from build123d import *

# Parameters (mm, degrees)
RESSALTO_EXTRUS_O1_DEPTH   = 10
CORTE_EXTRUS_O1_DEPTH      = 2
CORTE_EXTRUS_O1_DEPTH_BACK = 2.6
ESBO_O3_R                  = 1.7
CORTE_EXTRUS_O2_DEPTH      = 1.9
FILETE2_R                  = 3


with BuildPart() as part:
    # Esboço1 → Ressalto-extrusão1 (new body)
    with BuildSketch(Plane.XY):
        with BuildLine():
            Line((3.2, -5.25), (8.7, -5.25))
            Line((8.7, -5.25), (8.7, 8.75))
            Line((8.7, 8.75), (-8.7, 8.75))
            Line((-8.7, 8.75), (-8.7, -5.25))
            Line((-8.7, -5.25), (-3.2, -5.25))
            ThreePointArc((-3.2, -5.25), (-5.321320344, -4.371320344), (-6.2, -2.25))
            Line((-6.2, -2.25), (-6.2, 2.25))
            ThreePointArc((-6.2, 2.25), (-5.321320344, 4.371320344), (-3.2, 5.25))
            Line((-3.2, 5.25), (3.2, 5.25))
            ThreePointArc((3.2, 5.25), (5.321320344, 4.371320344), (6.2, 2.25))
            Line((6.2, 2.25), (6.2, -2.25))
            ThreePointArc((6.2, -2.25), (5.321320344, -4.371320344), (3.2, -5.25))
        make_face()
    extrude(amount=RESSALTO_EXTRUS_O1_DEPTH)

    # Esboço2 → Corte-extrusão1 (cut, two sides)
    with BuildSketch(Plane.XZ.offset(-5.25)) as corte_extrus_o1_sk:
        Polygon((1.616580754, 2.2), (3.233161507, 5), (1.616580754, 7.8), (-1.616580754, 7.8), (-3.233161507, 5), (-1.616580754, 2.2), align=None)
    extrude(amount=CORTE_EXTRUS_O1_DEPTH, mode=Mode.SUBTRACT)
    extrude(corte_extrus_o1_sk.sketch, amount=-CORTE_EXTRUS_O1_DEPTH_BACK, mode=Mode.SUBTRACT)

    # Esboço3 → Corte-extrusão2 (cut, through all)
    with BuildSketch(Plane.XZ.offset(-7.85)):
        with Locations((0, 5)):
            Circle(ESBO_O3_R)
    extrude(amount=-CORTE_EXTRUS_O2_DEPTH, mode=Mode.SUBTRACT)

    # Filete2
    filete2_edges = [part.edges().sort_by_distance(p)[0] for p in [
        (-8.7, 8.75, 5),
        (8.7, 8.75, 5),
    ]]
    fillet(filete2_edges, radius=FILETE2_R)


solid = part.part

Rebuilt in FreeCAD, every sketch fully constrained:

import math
import FreeCAD as App
import Part
import Sketcher
Q = App.Units.Quantity


def edges_at(feature, points):
    """Names of the edges that pass closest to the given points."""
    edges = feature.Shape.Edges
    near = lambda p: min(range(len(edges)), key=lambda i: edges[i].distToShape(Part.Vertex(*p))[0])
    return sorted({f"Edge{near(p) + 1}" for p in points})

doc = App.newDocument("Part")
params = doc.addObject("Spreadsheet::Sheet", "Params")
for row, (alias, value) in enumerate([
    ("sketch1_radius", "3 mm"),
    ("sketch1_height", "14 mm"),
    ("sketch1_width", "5.5 mm"),
    ("sketch1_width2", "17.4 mm"),
    ("sketch1_height2", "4.5 mm"),
    ("pad1_length", "10 mm"),
    ("pocket1_length", "2 mm"),
    ("pocket1_length2", "2.6 mm"),
    ("sketch3_diameter", "3.4 mm"),
    ("fillet_radius", "3 mm"),
], start=1):
    params.set(f"A{row}", alias)
    params.set(f"B{row}", "=" + value)
    params.setAlias(f"B{row}", alias)

body = doc.addObject("PartDesign::Body", "Body")

sketch1 = body.newObject("Sketcher::SketchObject", "Sketch")
sketch1.AttachmentSupport = (doc.getObject("XY_Plane"), [""])
sketch1.MapMode = "FlatFace"
sketch1.addGeometry([
    Part.LineSegment(App.Vector(3.2, -5.2, 0), App.Vector(8.7, -5.2, 0)),
    Part.LineSegment(App.Vector(8.7, -5.2, 0), App.Vector(8.7, 8.8, 0)),
    Part.LineSegment(App.Vector(8.7, 8.8, 0), App.Vector(-8.7, 8.8, 0)),
    Part.LineSegment(App.Vector(-8.7, 8.8, 0), App.Vector(-8.7, -5.2, 0)),
    Part.LineSegment(App.Vector(-8.7, -5.2, 0), App.Vector(-3.2, -5.2, 0)),
    Part.ArcOfCircle(Part.Circle(App.Vector(-3.2, -2.3, 0), App.Vector(0, 0, 1), 3), math.radians(180), math.radians(270)),
    Part.LineSegment(App.Vector(-6.2, -2.2, 0), App.Vector(-6.2, 2.2, 0)),
    Part.ArcOfCircle(Part.Circle(App.Vector(-3.2, 2.3, 0), App.Vector(0, 0, 1), 3), math.radians(90), math.radians(180)),
    Part.LineSegment(App.Vector(-3.2, 5.2, 0), App.Vector(3.2, 5.2, 0)),
    Part.ArcOfCircle(Part.Circle(App.Vector(3.2, 2.3, 0), App.Vector(0, 0, 1), 3), math.radians(0), math.radians(90)),
    Part.LineSegment(App.Vector(6.2, 2.2, 0), App.Vector(6.2, -2.2, 0)),
    Part.ArcOfCircle(Part.Circle(App.Vector(3.2, -2.3, 0), App.Vector(0, 0, 1), 3), math.radians(-90), math.radians(0)),
], False)
sketch1.addConstraint([
    Sketcher.Constraint("Coincident", 0, 2, 1, 1),
    Sketcher.Constraint("Coincident", 1, 2, 2, 1),
    Sketcher.Constraint("Coincident", 2, 2, 3, 1),
    Sketcher.Constraint("Coincident", 3, 2, 4, 1),
    Sketcher.Constraint("Tangent", 4, 2, 5, 2),
    Sketcher.Constraint("Tangent", 5, 1, 6, 1),
    Sketcher.Constraint("Tangent", 6, 2, 7, 2),
    Sketcher.Constraint("Tangent", 7, 1, 8, 1),
    Sketcher.Constraint("Tangent", 8, 2, 9, 2),
    Sketcher.Constraint("Tangent", 9, 1, 10, 1),
    Sketcher.Constraint("Tangent", 10, 2, 11, 2),
    Sketcher.Constraint("Tangent", 11, 1, 0, 1),
    Sketcher.Constraint("Horizontal", 0),
    Sketcher.Constraint("Vertical", 1),
    Sketcher.Constraint("Horizontal", 2),
    Sketcher.Constraint("Vertical", 3),
    Sketcher.Constraint("Horizontal", 4),
    Sketcher.Constraint("Vertical", 6),
    Sketcher.Constraint("Horizontal", 8),
    Sketcher.Constraint("Vertical", 10),
    Sketcher.Constraint("Equal", 5, 7),
    Sketcher.Constraint("Equal", 7, 9),
    Sketcher.Constraint("Equal", 9, 11),
    Sketcher.Constraint("Symmetric", 5, 3, 9, 3, -1, 1),
    Sketcher.Constraint("Symmetric", 0, 2, 3, 2, -2),
    Sketcher.Constraint("Radius", 5, Q("3 mm")),
    Sketcher.Constraint("DistanceY", 1, 1, 1, 2, Q("14 mm")),
    Sketcher.Constraint("DistanceX", 0, 1, 0, 2, Q("5.5 mm")),
    Sketcher.Constraint("DistanceX", 2, 2, 2, 1, Q("17.4 mm")),
    Sketcher.Constraint("DistanceY", 6, 1, 6, 2, Q("4.5 mm")),
])
sketch1.setExpression("Constraints[25]", "Params.sketch1_radius")
sketch1.setExpression("Constraints[26]", "Params.sketch1_height")
sketch1.setExpression("Constraints[27]", "Params.sketch1_width")
sketch1.setExpression("Constraints[28]", "Params.sketch1_width2")
sketch1.setExpression("Constraints[29]", "Params.sketch1_height2")
pad1 = body.newObject("PartDesign::Pad", "Pad")
pad1.Profile = sketch1
pad1.setExpression("Length", "Params.pad1_length")

sketch2 = body.newObject("Sketcher::SketchObject", "Sketch001")
sketch2.AttachmentSupport = (doc.getObject("XZ_Plane"), [""])
sketch2.MapMode = "FlatFace"
sketch2.AttachmentOffset = App.Placement(App.Vector(0, 0, -5.25), App.Rotation())
sketch2.addGeometry([
    Part.LineSegment(App.Vector(1.6, 2.2, 0), App.Vector(3.2, 5, 0)),
    Part.LineSegment(App.Vector(3.2, 5, 0), App.Vector(1.6, 7.8, 0)),
    Part.LineSegment(App.Vector(1.6, 7.8, 0), App.Vector(-1.6, 7.8, 0)),
    Part.LineSegment(App.Vector(-1.6, 7.8, 0), App.Vector(-3.2, 5, 0)),
    Part.LineSegment(App.Vector(-3.2, 5, 0), App.Vector(-1.6, 2.2, 0)),
    Part.LineSegment(App.Vector(-1.6, 2.2, 0), App.Vector(1.6, 2.2, 0)),
], False)
sketch2.addConstraint([
    Sketcher.Constraint("Coincident", 0, 2, 1, 1),
    Sketcher.Constraint("Coincident", 1, 2, 2, 1),
    Sketcher.Constraint("Coincident", 2, 2, 3, 1),
    Sketcher.Constraint("Coincident", 3, 2, 4, 1),
    Sketcher.Constraint("Coincident", 4, 2, 5, 1),
    Sketcher.Constraint("Coincident", 5, 2, 0, 1),
    Sketcher.Constraint("Horizontal", 2),
    Sketcher.Constraint("Horizontal", 5),
    Sketcher.Constraint("Symmetric", 0, 2, 3, 2, -2),
    Sketcher.Constraint("Parallel", 0, 3),
    Sketcher.Constraint("Parallel", 1, 4),
    Sketcher.Constraint("Vertical", 2, 2, 4, 2),
    Sketcher.Constraint("Vertical", 1, 2, 5, 2),
    Sketcher.Constraint("Angle", 0, Q("60 deg")),
    Sketcher.Constraint("DistanceY", -1, 1, 0, 2, Q("5 mm")),
    Sketcher.Constraint("DistanceY", -1, 1, 1, 2, Q("7.8 mm")),
    Sketcher.Constraint("DistanceX", 2, 2, 2, 1, Q("3.233162 mm")),
])
pocket1 = body.newObject("PartDesign::Pocket", "Pocket")
pocket1.Profile = sketch2
pocket1.Type = "TwoLengths"
pocket1.setExpression("Length", "Params.pocket1_length")
pocket1.setExpression("Length2", "Params.pocket1_length2")
pocket1.Reversed = True

sketch3 = body.newObject("Sketcher::SketchObject", "Sketch002")
sketch3.AttachmentSupport = (doc.getObject("XZ_Plane"), [""])
sketch3.MapMode = "FlatFace"
sketch3.AttachmentOffset = App.Placement(App.Vector(0, 0, -7.85), App.Rotation())
sketch3.addGeometry(Part.Circle(App.Vector(0, 5, 0), App.Vector(0, 0, 1), 1.7), False)
sketch3.addConstraint([
    Sketcher.Constraint("PointOnObject", 0, 3, -2),
    Sketcher.Constraint("Diameter", 0, Q("3.4 mm")),
    Sketcher.Constraint("DistanceY", -1, 1, 0, 3, Q("5 mm")),
])
sketch3.setExpression("Constraints[1]", "Params.sketch3_diameter")
pocket2 = body.newObject("PartDesign::Pocket", "Pocket001")
pocket2.Profile = sketch3
pocket2.Type = "ThroughAll"
doc.recompute()

fillet = body.newObject("PartDesign::Fillet", "Fillet")
fillet.Base = (pocket2, edges_at(pocket2, [(-8.7, 8.75, 5), (8.7, 8.75, 5)]))
fillet.setExpression("Radius", "Params.fillet_radius")

doc.recompute()
